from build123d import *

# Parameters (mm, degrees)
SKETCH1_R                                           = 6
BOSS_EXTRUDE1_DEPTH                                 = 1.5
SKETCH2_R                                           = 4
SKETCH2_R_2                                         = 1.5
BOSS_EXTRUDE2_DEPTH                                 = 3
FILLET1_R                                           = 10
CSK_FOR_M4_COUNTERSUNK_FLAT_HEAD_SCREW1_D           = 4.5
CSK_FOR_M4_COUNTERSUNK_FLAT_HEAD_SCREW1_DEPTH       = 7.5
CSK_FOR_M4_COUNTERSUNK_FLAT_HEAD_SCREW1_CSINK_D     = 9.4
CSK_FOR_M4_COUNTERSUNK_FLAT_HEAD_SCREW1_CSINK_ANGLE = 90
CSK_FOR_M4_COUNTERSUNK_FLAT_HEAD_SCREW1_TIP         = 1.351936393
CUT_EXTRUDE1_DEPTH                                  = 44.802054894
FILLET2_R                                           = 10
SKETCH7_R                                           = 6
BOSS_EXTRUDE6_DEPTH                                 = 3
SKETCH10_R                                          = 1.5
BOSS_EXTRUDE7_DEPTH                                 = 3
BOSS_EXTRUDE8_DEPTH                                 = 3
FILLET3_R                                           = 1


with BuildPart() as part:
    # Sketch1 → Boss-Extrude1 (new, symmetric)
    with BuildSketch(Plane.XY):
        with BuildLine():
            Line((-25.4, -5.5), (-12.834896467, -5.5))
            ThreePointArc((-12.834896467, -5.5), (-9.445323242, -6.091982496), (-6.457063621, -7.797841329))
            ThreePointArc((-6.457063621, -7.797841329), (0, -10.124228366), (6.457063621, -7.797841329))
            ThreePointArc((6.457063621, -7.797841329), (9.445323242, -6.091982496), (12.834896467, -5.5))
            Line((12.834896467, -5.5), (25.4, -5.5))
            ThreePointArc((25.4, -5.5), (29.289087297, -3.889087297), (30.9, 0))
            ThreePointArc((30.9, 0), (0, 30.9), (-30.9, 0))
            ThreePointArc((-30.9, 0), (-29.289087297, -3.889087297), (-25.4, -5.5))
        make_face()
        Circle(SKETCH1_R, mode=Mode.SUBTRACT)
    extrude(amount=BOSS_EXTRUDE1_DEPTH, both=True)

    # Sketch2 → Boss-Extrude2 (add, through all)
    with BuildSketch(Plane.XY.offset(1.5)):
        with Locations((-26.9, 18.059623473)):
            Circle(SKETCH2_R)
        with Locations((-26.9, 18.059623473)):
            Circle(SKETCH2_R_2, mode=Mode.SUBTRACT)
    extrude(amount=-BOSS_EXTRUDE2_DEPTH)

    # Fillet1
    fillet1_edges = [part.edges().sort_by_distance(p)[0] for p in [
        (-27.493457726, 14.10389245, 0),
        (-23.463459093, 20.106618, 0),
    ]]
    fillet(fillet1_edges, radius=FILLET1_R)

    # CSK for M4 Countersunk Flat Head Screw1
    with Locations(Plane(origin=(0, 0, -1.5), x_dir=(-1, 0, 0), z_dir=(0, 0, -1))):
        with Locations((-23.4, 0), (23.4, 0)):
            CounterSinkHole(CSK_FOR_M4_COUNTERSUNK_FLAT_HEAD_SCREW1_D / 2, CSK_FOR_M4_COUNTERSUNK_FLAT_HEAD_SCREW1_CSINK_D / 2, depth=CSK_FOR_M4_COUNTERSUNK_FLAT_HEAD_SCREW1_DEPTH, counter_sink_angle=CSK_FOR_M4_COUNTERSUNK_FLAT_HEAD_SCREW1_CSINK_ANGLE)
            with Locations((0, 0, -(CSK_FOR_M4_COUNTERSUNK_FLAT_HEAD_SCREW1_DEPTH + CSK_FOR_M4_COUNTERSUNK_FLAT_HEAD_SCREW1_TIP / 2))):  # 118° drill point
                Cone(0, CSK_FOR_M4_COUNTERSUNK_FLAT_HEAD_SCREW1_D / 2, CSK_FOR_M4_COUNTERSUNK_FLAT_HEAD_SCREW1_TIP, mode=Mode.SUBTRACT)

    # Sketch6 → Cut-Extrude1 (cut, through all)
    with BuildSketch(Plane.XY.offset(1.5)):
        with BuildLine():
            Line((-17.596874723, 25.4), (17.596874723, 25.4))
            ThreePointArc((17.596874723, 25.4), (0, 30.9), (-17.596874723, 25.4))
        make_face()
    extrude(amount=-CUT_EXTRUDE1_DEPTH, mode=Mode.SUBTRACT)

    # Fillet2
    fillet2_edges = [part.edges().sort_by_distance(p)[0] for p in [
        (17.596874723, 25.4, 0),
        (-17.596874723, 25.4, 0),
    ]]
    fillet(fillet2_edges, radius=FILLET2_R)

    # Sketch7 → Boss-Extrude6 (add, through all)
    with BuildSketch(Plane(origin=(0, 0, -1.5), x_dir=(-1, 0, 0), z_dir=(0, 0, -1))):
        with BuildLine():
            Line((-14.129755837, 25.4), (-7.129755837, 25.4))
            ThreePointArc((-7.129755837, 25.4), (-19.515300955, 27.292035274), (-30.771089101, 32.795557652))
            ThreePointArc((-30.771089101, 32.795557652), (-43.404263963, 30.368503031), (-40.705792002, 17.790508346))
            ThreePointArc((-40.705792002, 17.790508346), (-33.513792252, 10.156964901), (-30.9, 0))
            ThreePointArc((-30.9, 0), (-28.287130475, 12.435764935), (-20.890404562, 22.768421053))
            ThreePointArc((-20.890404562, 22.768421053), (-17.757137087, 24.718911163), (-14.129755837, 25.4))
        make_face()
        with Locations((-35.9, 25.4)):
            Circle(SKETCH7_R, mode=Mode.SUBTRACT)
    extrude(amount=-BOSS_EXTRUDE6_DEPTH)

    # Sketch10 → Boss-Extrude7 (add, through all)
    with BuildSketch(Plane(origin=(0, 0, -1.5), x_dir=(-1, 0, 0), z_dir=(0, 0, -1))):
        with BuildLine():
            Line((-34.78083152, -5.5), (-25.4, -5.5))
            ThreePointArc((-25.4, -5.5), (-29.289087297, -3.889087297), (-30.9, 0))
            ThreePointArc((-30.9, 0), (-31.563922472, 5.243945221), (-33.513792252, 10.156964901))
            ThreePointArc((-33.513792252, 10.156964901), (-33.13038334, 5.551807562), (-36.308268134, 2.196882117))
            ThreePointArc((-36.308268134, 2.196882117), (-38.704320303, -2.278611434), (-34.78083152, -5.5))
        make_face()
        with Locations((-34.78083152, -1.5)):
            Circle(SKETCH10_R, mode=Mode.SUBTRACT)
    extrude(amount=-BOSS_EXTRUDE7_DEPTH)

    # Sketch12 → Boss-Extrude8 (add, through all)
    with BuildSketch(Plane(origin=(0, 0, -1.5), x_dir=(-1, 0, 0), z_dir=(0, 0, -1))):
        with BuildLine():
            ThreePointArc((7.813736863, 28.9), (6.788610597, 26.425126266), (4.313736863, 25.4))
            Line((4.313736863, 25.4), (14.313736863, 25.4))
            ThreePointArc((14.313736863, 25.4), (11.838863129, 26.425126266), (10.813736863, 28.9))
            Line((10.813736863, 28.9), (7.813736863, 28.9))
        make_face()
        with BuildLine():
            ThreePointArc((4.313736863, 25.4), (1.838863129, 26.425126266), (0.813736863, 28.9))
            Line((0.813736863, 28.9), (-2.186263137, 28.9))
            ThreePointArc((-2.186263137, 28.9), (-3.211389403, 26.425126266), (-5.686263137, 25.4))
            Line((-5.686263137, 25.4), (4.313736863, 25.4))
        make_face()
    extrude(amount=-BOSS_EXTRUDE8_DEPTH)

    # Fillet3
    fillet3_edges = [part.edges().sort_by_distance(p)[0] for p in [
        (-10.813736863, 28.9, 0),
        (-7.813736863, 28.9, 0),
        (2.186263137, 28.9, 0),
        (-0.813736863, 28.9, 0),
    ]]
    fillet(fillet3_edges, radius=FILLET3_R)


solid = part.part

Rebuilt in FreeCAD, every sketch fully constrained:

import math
import FreeCAD as App
import Part
import Sketcher
Q = App.Units.Quantity


def edges_at(feature, points):
    """Names of the edges that pass closest to the given points."""
    edges = feature.Shape.Edges
    near = lambda p: min(range(len(edges)), key=lambda i: edges[i].distToShape(Part.Vertex(*p))[0])
    return sorted({f"Edge{near(p) + 1}" for p in points})

doc = App.newDocument("Part")
params = doc.addObject("Spreadsheet::Sheet", "Params")
for row, (alias, value) in enumerate([
    ("sketch1_diameter", "12 mm"),
    ("sketch1_radius", "10 mm"),
    ("sketch1_radius2", "5.5 mm"),
    ("sketch1_radius3", "30.9 mm"),
    ("pad1_length", "3 mm"),
    ("sketch2_diameter", "8 mm"),
    ("sketch2_diameter2", "3 mm"),
    ("pad2_length", "3 mm"),
    ("fillet_radius", "10 mm"),
    ("sketch3_diameter", "4.5 mm"),
    ("hole_diameter", "4.5 mm"),
    ("hole_depth", "7.5 mm"),
    ("hole_csink_diameter", "9.4 mm"),
    ("sketch4_radius", "30.9 mm"),
    ("fillet2_radius", "10 mm"),
    ("sketch5_diameter", "12 mm"),
    ("sketch5_radius", "9 mm"),
    ("sketch5_radius2", "10 mm"),
    ("sketch5_radius3", "30.9 mm"),
    ("sketch5_width", "7 mm"),
    ("pad3_length", "3 mm"),
    ("sketch6_diameter", "3 mm"),
    ("sketch6_radius", "4 mm"),
    ("sketch6_radius2", "5.5 mm"),
    ("pad4_length", "3 mm"),
    ("sketch7_radius", "3.5 mm"),
    ("sketch7_width", "10 mm"),
    ("pad5_length", "3 mm"),
    ("fillet3_radius", "1 mm"),
], start=1):
    params.set(f"A{row}", alias)
    params.set(f"B{row}", "=" + value)
    params.setAlias(f"B{row}", alias)

body = doc.addObject("PartDesign::Body", "Body")

# Sketch on XY plane
sketch1 = body.newObject("Sketcher::SketchObject", "Sketch")
sketch1.AttachmentSupport = (doc.getObject("XY_Plane"), [""])
sketch1.MapMode = "FlatFace"
sketch1.addGeometry(Part.LineSegment(App.Vector(-25, -6, 0), App.Vector(-13, -6, 0)), False)
sketch1.addGeometry(Part.ArcOfCircle(Part.Circle(App.Vector(-13, -15, 0), App.Vector(0, 0, 1), 10), math.radians(50), math.radians(90)), False)
sketch1.addGeometry(Part.ArcOfCircle(Part.Circle(App.Vector(0, 0, 0), App.Vector(0, 0, 1), 10), math.radians(-130), math.radians(-50)), False)
sketch1.addGeometry(Part.ArcOfCircle(Part.Circle(App.Vector(13, -15, 0), App.Vector(0, 0, 1), 10), math.radians(90), math.radians(130)), False)
sketch1.addGeometry(Part.LineSegment(App.Vector(13, -6, 0), App.Vector(25, -6, 0)), False)
sketch1.addGeometry(Part.ArcOfCircle(Part.Circle(App.Vector(25, 0, 0), App.Vector(0, 0, 1), 5), math.radians(-90), math.radians(0)), False)
sketch1.addGeometry(Part.ArcOfCircle(Part.Circle(App.Vector(0, 0, 0), App.Vector(0, 0, 1), 31), math.radians(0), math.radians(180)), False)
sketch1.addGeometry(Part.ArcOfCircle(Part.Circle(App.Vector(-25, 0, 0), App.Vector(0, 0, 1), 5), math.radians(180), math.radians(270)), False)
sketch1.addGeometry(Part.Circle(App.Vector(0, 0, 0), App.Vector(0, 0, 1), 6), False)
sketch1.addConstraint(Sketcher.Constraint("Tangent", 0, 2, 1, 2))
sketch1.addConstraint(Sketcher.Constraint("Tangent", 1, 1, 2, 1))
sketch1.addConstraint(Sketcher.Constraint("Tangent", 2, 2, 3, 2))
sketch1.addConstraint(Sketcher.Constraint("Tangent", 3, 1, 4, 1))
sketch1.addConstraint(Sketcher.Constraint("Tangent", 4, 2, 5, 1))
sketch1.addConstraint(Sketcher.Constraint("Tangent", 5, 2, 6, 1))
sketch1.addConstraint(Sketcher.Constraint("Tangent", 6, 2, 7, 1))
sketch1.addConstraint(Sketcher.Constraint("Tangent", 7, 2, 0, 1))
sketch1.addConstraint(Sketcher.Constraint("Horizontal", 0))
sketch1.addConstraint(Sketcher.Constraint("Horizontal", 4))
sketch1.addConstraint(Sketcher.Constraint("Coincident", 2, 3, -1, 1))
sketch1.addConstraint(Sketcher.Constraint("Coincident", 6, 3, -1, 1))
sketch1.addConstraint(Sketcher.Constraint("Coincident", 8, 3, -1, 1))
sketch1.addConstraint(Sketcher.Constraint("Equal", 1, 3))
sketch1.addConstraint(Sketcher.Constraint("Equal", 5, 7))
sketch1.addConstraint(Sketcher.Constraint("PointOnObject", 5, 3, -1))
sketch1.addConstraint(Sketcher.Constraint("PointOnObject", 7, 3, -1))
sketch1.addConstraint(Sketcher.Constraint("Diameter", 8, Q("12 mm")))
sketch1.addConstraint(Sketcher.Constraint("Radius", 1, Q("10 mm")))
sketch1.addConstraint(Sketcher.Constraint("Radius", 5, Q("5.5 mm")))
sketch1.addConstraint(Sketcher.Constraint("Radius", 6, Q("30.9 mm")))
sketch1.addConstraint(Sketcher.Constraint("Radius", 2, Q("10.124228 mm")))
sketch1.setExpression("Constraints[17]", "Params.sketch1_diameter")
sketch1.setExpression("Constraints[18]", "Params.sketch1_radius")
sketch1.setExpression("Constraints[19]", "Params.sketch1_radius2")
sketch1.setExpression("Constraints[20]", "Params.sketch1_radius3")
pad1 = body.newObject("PartDesign::Pad", "Pad")
pad1.Profile = sketch1
pad1.setExpression("Length", "Params.pad1_length")
pad1.Midplane = True

# Sketch on XY plane
sketch2 = body.newObject("Sketcher::SketchObject", "Sketch001")
sketch2.AttachmentSupport = (doc.getObject("XY_Plane"), [""])
sketch2.MapMode = "FlatFace"
sketch2.AttachmentOffset = App.Placement(App.Vector(0, 0, 1.5), App.Rotation())
sketch2.addGeometry(Part.Circle(App.Vector(-26.9, 18.1, 0), App.Vector(0, 0, 1), 4), False)
sketch2.addGeometry(Part.Circle(App.Vector(-26.9, 18.1, 0), App.Vector(0, 0, 1), 1.5), False)
sketch2.addConstraint(Sketcher.Constraint("Coincident", 1, 3, 0, 3))
sketch2.addConstraint(Sketcher.Constraint("Diameter", 0, Q("8 mm")))
sketch2.addConstraint(Sketcher.Constraint("Diameter", 1, Q("3 mm")))
sketch2.addConstraint(Sketcher.Constraint("DistanceX", 0, 3, -1, 1, Q("26.9 mm")))
sketch2.addConstraint(Sketcher.Constraint("DistanceY", -1, 1, 0, 3, Q("18.059623 mm")))
sketch2.setExpression("Constraints[1]", "Params.sketch2_diameter")
sketch2.setExpression("Constraints[2]", "Params.sketch2_diameter2")
pad2 = body.newObject("PartDesign::Pad", "Pad001")
pad2.Profile = sketch2
pad2.setExpression("Length", "Params.pad2_length")
pad2.Reversed = True
doc.recompute()

fillet = body.newObject("PartDesign::Fillet", "Fillet")
fillet.Base = (pad2, edges_at(pad2, [(-27.493, 14.104, 0), (-23.463, 20.107, 0)]))
fillet.setExpression("Radius", "Params.fillet_radius")

# Sketch on XY plane
sketch3 = body.newObject("Sketcher::SketchObject", "Sketch002")
sketch3.AttachmentSupport = (doc.getObject("XY_Plane"), [""])
sketch3.MapMode = "FlatFace"
sketch3.AttachmentOffset = App.Placement(App.Vector(0, 0, -1.5), App.Rotation())
sketch3.addGeometry(Part.Circle(App.Vector(23.4, 0, 0), App.Vector(0, 0, 1), 2.2), False)
sketch3.addGeometry(Part.Circle(App.Vector(-23.4, 0, 0), App.Vector(0, 0, 1), 2.2), False)
sketch3.addConstraint(Sketcher.Constraint("Equal", 0, 1))
sketch3.addConstraint(Sketcher.Constraint("Symmetric", 0, 3, 1, 3, -1, 1))
sketch3.addConstraint(Sketcher.Constraint("PointOnObject", 0, 3, -1))
sketch3.addConstraint(Sketcher.Constraint("Diameter", 0, Q("4.5 mm")))
sketch3.addConstraint(Sketcher.Constraint("DistanceX", -1, 1, 0, 3, Q("23.4 mm")))
sketch3.setExpression("Constraints[3]", "Params.sketch3_diameter")
doc.recompute()
hole = body.newObject("PartDesign::Hole", "Hole")
hole.Profile = sketch3
hole.ThreadType = "None"
hole.setExpression("Diameter", "Params.hole_diameter")
hole.DepthType = "Dimension"
hole.setExpression("Depth", "Params.hole_depth")
hole.DrillPoint = "Angled"
hole.DrillPointAngle = 118
hole.HoleCutType = "Countersink"
hole.setExpression("HoleCutDiameter", "Params.hole_csink_diameter")
hole.HoleCutCountersinkAngle = 90
hole.Reversed = True

# Sketch on XY plane
sketch4 = body.newObject("Sketcher::SketchObject", "Sketch003")
sketch4.AttachmentSupport = (doc.getObject("XY_Plane"), [""])
sketch4.MapMode = "FlatFace"
sketch4.AttachmentOffset = App.Placement(App.Vector(0, 0, 1.5), App.Rotation())
sketch4.addGeometry(Part.LineSegment(App.Vector(-18, 25, 0), App.Vector(18, 25, 0)), False)
sketch4.addGeometry(Part.ArcOfCircle(Part.Circle(App.Vector(0, 0, 0), App.Vector(0, 0, 1), 31), math.radians(55), math.radians(125)), False)
sketch4.addConstraint(Sketcher.Constraint("Coincident", 0, 1, 1, 2))
sketch4.addConstraint(Sketcher.Constraint("Coincident", 1, 1, 0, 2))
sketch4.addConstraint(Sketcher.Constraint("Horizontal", 0))
sketch4.addConstraint(Sketcher.Constraint("Coincident", 1, 3, -1, 1))
sketch4.addConstraint(Sketcher.Constraint("Radius", 1, Q("30.9 mm")))
sketch4.addConstraint(Sketcher.Constraint("DistanceY", -1, 1, 0, 1, Q("25.4 mm")))
sketch4.setExpression("Constraints[4]", "Params.sketch4_radius")
pocket1 = body.newObject("PartDesign::Pocket", "Pocket")
pocket1.Profile = sketch4
pocket1.Type = "ThroughAll"
doc.recompute()

fillet2 = body.newObject("PartDesign::Fillet", "Fillet001")
fillet2.Base = (pocket1, edges_at(pocket1, [(17.597, 25.4, 0), (-17.597, 25.4, 0)]))
fillet2.setExpression("Radius", "Params.fillet2_radius")

# Sketch on XY plane
sketch5 = body.newObject("Sketcher::SketchObject", "Sketch004")
sketch5.AttachmentSupport = (doc.getObject("XY_Plane"), [""])
sketch5.MapMode = "FlatFace"
sketch5.AttachmentOffset = App.Placement(App.Vector(0, 0, -1.5), App.Rotation())
sketch5.addGeometry(Part.LineSegment(App.Vector(14, 25, 0), App.Vector(7, 25, 0)), False)
sketch5.addGeometry(Part.ArcOfCircle(Part.Circle(App.Vector(7, 67, 0), App.Vector(0, 0, 1), 41), math.radians(-90), math.radians(-55)), False)
sketch5.addGeometry(Part.ArcOfCircle(Part.Circle(App.Vector(36, 25, 0), App.Vector(0, 0, 1), 9), math.radians(-58), math.radians(125)), False)
sketch5.addGeometry(Part.ArcOfCircle(Part.Circle(App.Vector(52, 0, 0), App.Vector(0, 0, 1), 21), math.radians(122), math.radians(180)), False)
sketch5.addGeometry(Part.ArcOfCircle(Part.Circle(App.Vector(0, 0, 0), App.Vector(0, 0, 1), 31), math.radians(0), math.radians(47)), False)
sketch5.addGeometry(Part.ArcOfCircle(Part.Circle(App.Vector(14, 15, 0), App.Vector(0, 0, 1), 10), math.radians(47), math.radians(90)), False)
sketch5.addGeometry(Part.Circle(App.Vector(36, 25, 0), App.Vector(0, 0, 1), 6), False)
sketch5.addConstraint(Sketcher.Constraint("Tangent", 0, 2, 1, 1))
sketch5.addConstraint(Sketcher.Constraint("Tangent", 1, 2, 2, 2))
sketch5.addConstraint(Sketcher.Constraint("Tangent", 2, 1, 3, 1))
sketch5.addConstraint(Sketcher.Constraint("Tangent", 3, 2, 4, 1))
sketch5.addConstraint(Sketcher.Constraint("Tangent", 4, 2, 5, 1))
sketch5.addConstraint(Sketcher.Constraint("Tangent", 5, 2, 0, 1))
sketch5.addConstraint(Sketcher.Constraint("Horizontal", 0))
sketch5.addConstraint(Sketcher.Constraint("Coincident", 4, 3, -1, 1))
sketch5.addConstraint(Sketcher.Constraint("Coincident", 6, 3, 2, 3))
sketch5.addConstraint(Sketcher.Constraint("PointOnObject", 3, 3, -1))
sketch5.addConstraint(Sketcher.Constraint("Horizontal", 6, 3, 0, 2))
sketch5.addConstraint(Sketcher.Constraint("Diameter", 6, Q("12 mm")))
sketch5.addConstraint(Sketcher.Constraint("Radius", 2, Q("9 mm")))
sketch5.addConstraint(Sketcher.Constraint("Radius", 5, Q("10 mm")))
sketch5.addConstraint(Sketcher.Constraint("Radius", 4, Q("30.9 mm")))
sketch5.addConstraint(Sketcher.Constraint("DistanceX", 0, 2, 0, 1, Q("7 mm")))
sketch5.addConstraint(Sketcher.Constraint("DistanceX", 3, 2, 2, 3, Q("5 mm")))
sketch5.addConstraint(Sketcher.Constraint("DistanceY", -1, 1, 2, 3, Q("25.4 mm")))
sketch5.setExpression("Constraints[11]", "Params.sketch5_diameter")
sketch5.setExpression("Constraints[12]", "Params.sketch5_radius")
sketch5.setExpression("Constraints[13]", "Params.sketch5_radius2")
sketch5.setExpression("Constraints[14]", "Params.sketch5_radius3")
sketch5.setExpression("Constraints[15]", "Params.sketch5_width")
pad3 = body.newObject("PartDesign::Pad", "Pad002")
pad3.Profile = sketch5
pad3.setExpression("Length", "Params.pad3_length")

# Sketch on XY plane
sketch6 = body.newObject("Sketcher::SketchObject", "Sketch005")
sketch6.AttachmentSupport = (doc.getObject("XY_Plane"), [""])
sketch6.MapMode = "FlatFace"
sketch6.AttachmentOffset = App.Placement(App.Vector(0, 0, -1.5), App.Rotation())
sketch6.addGeometry(Part.LineSegment(App.Vector(34.8, -5.5, 0), App.Vector(25.4, -5.5, 0)), False)
sketch6.addGeometry(Part.ArcOfCircle(Part.Circle(App.Vector(25.4, 0, 0), App.Vector(0, 0, 1), 5.5), math.radians(-90), math.radians(0)), False)
sketch6.addGeometry(Part.ArcOfCircle(Part.Circle(App.Vector(51.9, 0, 0), App.Vector(0, 0, 1), 21), math.radians(151), math.radians(180)), False)
sketch6.addGeometry(Part.ArcOfCircle(Part.Circle(App.Vector(38.5, 7.4, 0), App.Vector(0, 0, 1), 5.7), math.radians(151), math.radians(248)), False)
sketch6.addGeometry(Part.ArcOfCircle(Part.Circle(App.Vector(34.8, -1.5, 0), App.Vector(0, 0, 1), 4), math.radians(-90), math.radians(68)), False)
sketch6.addGeometry(Part.Circle(App.Vector(34.8, -1.5, 0), App.Vector(0, 0, 1), 1.5), False)
sketch6.addConstraint(Sketcher.Constraint("Tangent", 0, 2, 1, 1))
sketch6.addConstraint(Sketcher.Constraint("Tangent", 1, 2, 2, 2))
sketch6.addConstraint(Sketcher.Constraint("Tangent", 2, 1, 3, 1))
sketch6.addConstraint(Sketcher.Constraint("Tangent", 3, 2, 4, 2))
sketch6.addConstraint(Sketcher.Constraint("Tangent", 4, 1, 0, 1))
sketch6.addConstraint(Sketcher.Constraint("Horizontal", 0))
sketch6.addConstraint(Sketcher.Constraint("Coincident", 5, 3, 4, 3))
sketch6.addConstraint(Sketcher.Constraint("PointOnObject", 1, 3, -1))
sketch6.addConstraint(Sketcher.Constraint("PointOnObject", 2, 3, -1))
sketch6.addConstraint(Sketcher.Constraint("Diameter", 5, Q("3 mm")))
sketch6.addConstraint(Sketcher.Constraint("Radius", 4, Q("4 mm")))
sketch6.addConstraint(Sketcher.Constraint("Radius", 1, Q("5.5 mm")))
sketch6.addConstraint(Sketcher.Constraint("DistanceX", -1, 1, 1, 3, Q("25.4 mm")))
sketch6.addConstraint(Sketcher.Constraint("Radius", 2, Q("21.041429 mm")))
sketch6.addConstraint(Sketcher.Constraint("Radius", 3, Q("5.657754 mm")))
sketch6.addConstraint(Sketcher.Constraint("DistanceX", 0, 2, 0, 1, Q("9.380832 mm")))
sketch6.setExpression("Constraints[9]", "Params.sketch6_diameter")
sketch6.setExpression("Constraints[10]", "Params.sketch6_radius")
sketch6.setExpression("Constraints[11]", "Params.sketch6_radius2")
pad4 = body.newObject("PartDesign::Pad", "Pad003")
pad4.Profile = sketch6
pad4.setExpression("Length", "Params.pad4_length")

# Sketch on XY plane
sketch7 = body.newObject("Sketcher::SketchObject", "Sketch006")
sketch7.AttachmentSupport = (doc.getObject("XY_Plane"), [""])
sketch7.MapMode = "FlatFace"
sketch7.AttachmentOffset = App.Placement(App.Vector(0, 0, -1.5), App.Rotation())
sketch7.addGeometry(Part.ArcOfCircle(Part.Circle(App.Vector(-4.3, 28.9, 0), App.Vector(0, 0, 1), 3.5), math.radians(-180), math.radians(-90)), False)
sketch7.addGeometry(Part.LineSegment(App.Vector(-4.3, 25.4, 0), App.Vector(-14.3, 25.4, 0)), False)
sketch7.addGeometry(Part.ArcOfCircle(Part.Circle(App.Vector(-14.3, 28.9, 0), App.Vector(0, 0, 1), 3.5), math.radians(-90), math.radians(0)), False)
sketch7.addGeometry(Part.LineSegment(App.Vector(-10.8, 28.9, 0), App.Vector(-7.8, 28.9, 0)), False)
sketch7.addGeometry(Part.ArcOfCircle(Part.Circle(App.Vector(-4.3, 28.9, 0), App.Vector(0, 0, 1), 3.5), math.radians(-90), math.radians(0)), False)
sketch7.addGeometry(Part.LineSegment(App.Vector(-0.8, 28.9, 0), App.Vector(2.2, 28.9, 0)), False)
sketch7.addGeometry(Part.ArcOfCircle(Part.Circle(App.Vector(5.7, 28.9, 0), App.Vector(0, 0, 1), 3.5), math.radians(-180), math.radians(-90)), False)
sketch7.addGeometry(Part.LineSegment(App.Vector(5.7, 25.4, 0), App.Vector(-4.3, 25.4, 0)), False)
sketch7.addConstraint(Sketcher.Constraint("Tangent", 0, 2, 1, 1))
sketch7.addConstraint(Sketcher.Constraint("Tangent", 1, 2, 2, 1))
sketch7.addConstraint(Sketcher.Constraint("Coincident", 2, 2, 3, 1))
sketch7.addConstraint(Sketcher.Constraint("Coincident", 3, 2, 0, 1))
sketch7.addConstraint(Sketcher.Constraint("Coincident", 4, 2, 5, 1))
sketch7.addConstraint(Sketcher.Constraint("Coincident", 5, 2, 6, 1))
sketch7.addConstraint(Sketcher.Constraint("Tangent", 6, 2, 7, 1))
sketch7.addConstraint(Sketcher.Constraint("Tangent", 7, 2, 4, 1))
sketch7.addConstraint(Sketcher.Constraint("Horizontal", 1))
sketch7.addConstraint(Sketcher.Constraint("Horizontal", 3))
sketch7.addConstraint(Sketcher.Constraint("Horizontal", 5))
sketch7.addConstraint(Sketcher.Constraint("Horizontal", 7))
sketch7.addConstraint(Sketcher.Constraint("Coincident", 4, 3, 0, 3))
sketch7.addConstraint(Sketcher.Constraint("Equal", 0, 2))
sketch7.addConstraint(Sketcher.Constraint("Equal", 2, 4))
sketch7.addConstraint(Sketcher.Constraint("Equal", 4, 6))
sketch7.addConstraint(Sketcher.Constraint("Horizontal", 6, 3, 2, 2))
sketch7.addConstraint(Sketcher.Constraint("Horizontal", 3, 2, 4, 2))
sketch7.addConstraint(Sketcher.Constraint("Equal", 3, 5))
sketch7.addConstraint(Sketcher.Constraint("Radius", 0, Q("3.5 mm")))
sketch7.addConstraint(Sketcher.Constraint("DistanceX", 1, 2, 1, 1, Q("10 mm")))
sketch7.addConstraint(Sketcher.Constraint("DistanceY", -1, 1, 0, 3, Q("28.9 mm")))
sketch7.addConstraint(Sketcher.Constraint("DistanceX", 0, 3, -1, 1, Q("4.313737 mm")))
sketch7.setExpression("Constraints[19]", "Params.sketch7_radius")
sketch7.setExpression("Constraints[20]", "Params.sketch7_width")
pad5 = body.newObject("PartDesign::Pad", "Pad004")
pad5.Profile = sketch7
pad5.setExpression("Length", "Params.pad5_length")
doc.recompute()

fillet3 = body.newObject("PartDesign::Fillet", "Fillet002")
fillet3.Base = (pad5, edges_at(pad5, [
    (-10.814, 28.9, 0),
    (-7.814, 28.9, 0),
    (2.186, 28.9, 0),
    (-0.814, 28.9, 0),
]))
fillet3.setExpression("Radius", "Params.fillet3_radius")

doc.recompute()
